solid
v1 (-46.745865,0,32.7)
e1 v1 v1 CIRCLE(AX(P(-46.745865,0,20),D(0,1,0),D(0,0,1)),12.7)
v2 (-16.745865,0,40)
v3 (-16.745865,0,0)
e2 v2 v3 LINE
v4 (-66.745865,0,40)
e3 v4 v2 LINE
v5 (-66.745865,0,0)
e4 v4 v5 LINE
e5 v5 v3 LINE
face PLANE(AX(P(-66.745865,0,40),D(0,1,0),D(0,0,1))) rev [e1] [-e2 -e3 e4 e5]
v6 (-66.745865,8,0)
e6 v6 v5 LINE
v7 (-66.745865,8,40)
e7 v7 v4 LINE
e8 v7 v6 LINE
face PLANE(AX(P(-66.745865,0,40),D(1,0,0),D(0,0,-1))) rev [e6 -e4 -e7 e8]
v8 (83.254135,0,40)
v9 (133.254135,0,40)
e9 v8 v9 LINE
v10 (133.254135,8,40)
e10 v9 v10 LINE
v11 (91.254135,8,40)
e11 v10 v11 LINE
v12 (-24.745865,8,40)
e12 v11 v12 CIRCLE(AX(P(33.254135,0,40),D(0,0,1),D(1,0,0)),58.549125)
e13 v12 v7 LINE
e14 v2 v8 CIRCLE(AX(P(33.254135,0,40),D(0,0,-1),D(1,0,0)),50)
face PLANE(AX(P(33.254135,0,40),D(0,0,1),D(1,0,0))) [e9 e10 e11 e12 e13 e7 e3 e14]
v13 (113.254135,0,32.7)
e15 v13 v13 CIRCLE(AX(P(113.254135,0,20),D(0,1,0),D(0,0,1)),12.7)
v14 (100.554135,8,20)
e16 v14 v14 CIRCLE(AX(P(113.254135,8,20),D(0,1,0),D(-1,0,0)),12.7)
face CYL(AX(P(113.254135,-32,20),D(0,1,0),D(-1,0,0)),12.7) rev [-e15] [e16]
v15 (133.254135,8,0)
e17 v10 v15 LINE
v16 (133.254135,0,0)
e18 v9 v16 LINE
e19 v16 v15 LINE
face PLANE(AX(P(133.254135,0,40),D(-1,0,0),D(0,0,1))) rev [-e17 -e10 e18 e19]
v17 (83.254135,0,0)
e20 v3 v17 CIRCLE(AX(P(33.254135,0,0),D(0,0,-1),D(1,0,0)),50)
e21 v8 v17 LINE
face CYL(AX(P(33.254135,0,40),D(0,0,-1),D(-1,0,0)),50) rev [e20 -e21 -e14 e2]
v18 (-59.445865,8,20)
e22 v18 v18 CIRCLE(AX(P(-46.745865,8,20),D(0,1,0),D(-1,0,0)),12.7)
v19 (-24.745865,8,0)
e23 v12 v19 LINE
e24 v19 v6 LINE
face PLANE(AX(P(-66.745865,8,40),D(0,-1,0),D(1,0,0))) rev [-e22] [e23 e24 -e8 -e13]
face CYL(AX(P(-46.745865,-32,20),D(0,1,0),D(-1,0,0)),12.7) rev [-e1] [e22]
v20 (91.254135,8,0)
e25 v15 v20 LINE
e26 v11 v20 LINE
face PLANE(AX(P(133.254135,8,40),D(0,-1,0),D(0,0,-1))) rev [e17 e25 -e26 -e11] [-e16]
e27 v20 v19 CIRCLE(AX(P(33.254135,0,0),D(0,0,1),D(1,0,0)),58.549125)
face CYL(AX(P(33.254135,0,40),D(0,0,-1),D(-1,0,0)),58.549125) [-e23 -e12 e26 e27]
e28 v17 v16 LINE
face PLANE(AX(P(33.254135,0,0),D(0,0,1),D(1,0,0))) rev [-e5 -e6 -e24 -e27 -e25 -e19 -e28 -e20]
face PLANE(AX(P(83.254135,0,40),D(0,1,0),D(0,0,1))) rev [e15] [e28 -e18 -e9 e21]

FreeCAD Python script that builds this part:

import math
import FreeCAD as App
import Part
import Sketcher
from FreeCAD import Vector

doc = App.newDocument("Part")
body = doc.addObject("PartDesign::Body", "Body")

sketch1 = body.newObject("Sketcher::SketchObject", "Sketch")
sketch1.AttachmentSupport = (doc.getObject("XY_Plane"), [""])
sketch1.MapMode = "FlatFace"
sketch1.addGeometry(Part.LineSegment(Vector(133, 0, 0), Vector(133, 8, 0)), False)
sketch1.addGeometry(Part.LineSegment(Vector(133, 8, 0), Vector(91, 8, 0)), False)
sketch1.addGeometry(Part.ArcOfCircle(Part.Circle(Vector(33, 0, 0), Vector(0, 0, 1), 59), math.radians(8), math.radians(172)), False)
sketch1.addGeometry(Part.LineSegment(Vector(-25, 8, 0), Vector(-67, 8, 0)), False)
sketch1.addGeometry(Part.LineSegment(Vector(-67, 8, 0), Vector(-67, 0, 0)), False)
sketch1.addGeometry(Part.LineSegment(Vector(-67, 0, 0), Vector(-17, 0, 0)), False)
sketch1.addGeometry(Part.ArcOfCircle(Part.Circle(Vector(33, 0, 0), Vector(0, 0, 1), 50), math.radians(0), math.radians(180)), False)
sketch1.addGeometry(Part.LineSegment(Vector(83, 0, 0), Vector(133, 0, 0)), False)
sketch1.addConstraint(Sketcher.Constraint("Coincident", 0, 2, 1, 1))
sketch1.addConstraint(Sketcher.Constraint("Coincident", 1, 2, 2, 1))
sketch1.addConstraint(Sketcher.Constraint("Coincident", 2, 2, 3, 1))
sketch1.addConstraint(Sketcher.Constraint("Coincident", 3, 2, 4, 1))
sketch1.addConstraint(Sketcher.Constraint("Coincident", 4, 2, 5, 1))
sketch1.addConstraint(Sketcher.Constraint("Coincident", 5, 2, 6, 2))
sketch1.addConstraint(Sketcher.Constraint("Coincident", 6, 1, 7, 1))
sketch1.addConstraint(Sketcher.Constraint("Coincident", 7, 2, 0, 1))
sketch1.addConstraint(Sketcher.Constraint("Vertical", 0))
sketch1.addConstraint(Sketcher.Constraint("Horizontal", 1))
sketch1.addConstraint(Sketcher.Constraint("Horizontal", 3))
sketch1.addConstraint(Sketcher.Constraint("Vertical", 4))
sketch1.addConstraint(Sketcher.Constraint("Horizontal", 5))
sketch1.addConstraint(Sketcher.Constraint("Horizontal", 7))
sketch1.addConstraint(Sketcher.Constraint("Coincident", 6, 3, 2, 3))
sketch1.addConstraint(Sketcher.Constraint("PointOnObject", 2, 3, -1))
sketch1.addConstraint(Sketcher.Constraint("PointOnObject", 4, 2, -1))
sketch1.addConstraint(Sketcher.Constraint("PointOnObject", 6, 1, -1))
sketch1.addConstraint(Sketcher.Constraint("Horizontal", 1, 2, 2, 2))
sketch1.addConstraint(Sketcher.Constraint("Equal", 1, 3))
sketch1.addConstraint(Sketcher.Constraint("Radius", 6, 50.0))
sketch1.addConstraint(Sketcher.Constraint("DistanceX", 1, 2, 1, 1, 42.0))
sketch1.addConstraint(Sketcher.Constraint("DistanceX", 5, 1, 5, 2, 50.0))
sketch1.addConstraint(Sketcher.Constraint("DistanceY", 0, 1, 0, 2, 8.0))
sketch1.addConstraint(Sketcher.Constraint("DistanceX", -1, 1, 2, 3, 33.254135))
pad1 = body.newObject("PartDesign::Pad", "Pad")
pad1.Profile = sketch1
pad1.Length = 40

sketch2 = body.newObject("Sketcher::SketchObject", "Sketch001")
sketch2.AttachmentSupport = (doc.getObject("XZ_Plane"), [""])
sketch2.MapMode = "FlatFace"
sketch2.AttachmentOffset = App.Placement(Vector(0, 0, -8), App.Rotation())
sketch2.addGeometry(Part.Circle(Vector(-47, 20, 0), Vector(0, 0, 1), 13), False)
sketch2.addGeometry(Part.Circle(Vector(113, 20, 0), Vector(0, 0, 1), 13), False)
sketch2.addConstraint(Sketcher.Constraint("Equal", 0, 1))
sketch2.addConstraint(Sketcher.Constraint("Horizontal", 0, 3, 1, 3))
sketch2.addConstraint(Sketcher.Constraint("Diameter", 0, 25.4))
sketch2.addConstraint(Sketcher.Constraint("DistanceY", -1, 1, 0, 3, 20.0))
sketch2.addConstraint(Sketcher.Constraint("DistanceX", 0, 3, 1, 3, 160.0))
sketch2.addConstraint(Sketcher.Constraint("DistanceX", 0, 3, -1, 1, 46.745865))
pocket1 = body.newObject("PartDesign::Pocket", "Pocket")
pocket1.Profile = sketch2
pocket1.Length = 40
pocket1.Reversed = True

doc.recompute()
